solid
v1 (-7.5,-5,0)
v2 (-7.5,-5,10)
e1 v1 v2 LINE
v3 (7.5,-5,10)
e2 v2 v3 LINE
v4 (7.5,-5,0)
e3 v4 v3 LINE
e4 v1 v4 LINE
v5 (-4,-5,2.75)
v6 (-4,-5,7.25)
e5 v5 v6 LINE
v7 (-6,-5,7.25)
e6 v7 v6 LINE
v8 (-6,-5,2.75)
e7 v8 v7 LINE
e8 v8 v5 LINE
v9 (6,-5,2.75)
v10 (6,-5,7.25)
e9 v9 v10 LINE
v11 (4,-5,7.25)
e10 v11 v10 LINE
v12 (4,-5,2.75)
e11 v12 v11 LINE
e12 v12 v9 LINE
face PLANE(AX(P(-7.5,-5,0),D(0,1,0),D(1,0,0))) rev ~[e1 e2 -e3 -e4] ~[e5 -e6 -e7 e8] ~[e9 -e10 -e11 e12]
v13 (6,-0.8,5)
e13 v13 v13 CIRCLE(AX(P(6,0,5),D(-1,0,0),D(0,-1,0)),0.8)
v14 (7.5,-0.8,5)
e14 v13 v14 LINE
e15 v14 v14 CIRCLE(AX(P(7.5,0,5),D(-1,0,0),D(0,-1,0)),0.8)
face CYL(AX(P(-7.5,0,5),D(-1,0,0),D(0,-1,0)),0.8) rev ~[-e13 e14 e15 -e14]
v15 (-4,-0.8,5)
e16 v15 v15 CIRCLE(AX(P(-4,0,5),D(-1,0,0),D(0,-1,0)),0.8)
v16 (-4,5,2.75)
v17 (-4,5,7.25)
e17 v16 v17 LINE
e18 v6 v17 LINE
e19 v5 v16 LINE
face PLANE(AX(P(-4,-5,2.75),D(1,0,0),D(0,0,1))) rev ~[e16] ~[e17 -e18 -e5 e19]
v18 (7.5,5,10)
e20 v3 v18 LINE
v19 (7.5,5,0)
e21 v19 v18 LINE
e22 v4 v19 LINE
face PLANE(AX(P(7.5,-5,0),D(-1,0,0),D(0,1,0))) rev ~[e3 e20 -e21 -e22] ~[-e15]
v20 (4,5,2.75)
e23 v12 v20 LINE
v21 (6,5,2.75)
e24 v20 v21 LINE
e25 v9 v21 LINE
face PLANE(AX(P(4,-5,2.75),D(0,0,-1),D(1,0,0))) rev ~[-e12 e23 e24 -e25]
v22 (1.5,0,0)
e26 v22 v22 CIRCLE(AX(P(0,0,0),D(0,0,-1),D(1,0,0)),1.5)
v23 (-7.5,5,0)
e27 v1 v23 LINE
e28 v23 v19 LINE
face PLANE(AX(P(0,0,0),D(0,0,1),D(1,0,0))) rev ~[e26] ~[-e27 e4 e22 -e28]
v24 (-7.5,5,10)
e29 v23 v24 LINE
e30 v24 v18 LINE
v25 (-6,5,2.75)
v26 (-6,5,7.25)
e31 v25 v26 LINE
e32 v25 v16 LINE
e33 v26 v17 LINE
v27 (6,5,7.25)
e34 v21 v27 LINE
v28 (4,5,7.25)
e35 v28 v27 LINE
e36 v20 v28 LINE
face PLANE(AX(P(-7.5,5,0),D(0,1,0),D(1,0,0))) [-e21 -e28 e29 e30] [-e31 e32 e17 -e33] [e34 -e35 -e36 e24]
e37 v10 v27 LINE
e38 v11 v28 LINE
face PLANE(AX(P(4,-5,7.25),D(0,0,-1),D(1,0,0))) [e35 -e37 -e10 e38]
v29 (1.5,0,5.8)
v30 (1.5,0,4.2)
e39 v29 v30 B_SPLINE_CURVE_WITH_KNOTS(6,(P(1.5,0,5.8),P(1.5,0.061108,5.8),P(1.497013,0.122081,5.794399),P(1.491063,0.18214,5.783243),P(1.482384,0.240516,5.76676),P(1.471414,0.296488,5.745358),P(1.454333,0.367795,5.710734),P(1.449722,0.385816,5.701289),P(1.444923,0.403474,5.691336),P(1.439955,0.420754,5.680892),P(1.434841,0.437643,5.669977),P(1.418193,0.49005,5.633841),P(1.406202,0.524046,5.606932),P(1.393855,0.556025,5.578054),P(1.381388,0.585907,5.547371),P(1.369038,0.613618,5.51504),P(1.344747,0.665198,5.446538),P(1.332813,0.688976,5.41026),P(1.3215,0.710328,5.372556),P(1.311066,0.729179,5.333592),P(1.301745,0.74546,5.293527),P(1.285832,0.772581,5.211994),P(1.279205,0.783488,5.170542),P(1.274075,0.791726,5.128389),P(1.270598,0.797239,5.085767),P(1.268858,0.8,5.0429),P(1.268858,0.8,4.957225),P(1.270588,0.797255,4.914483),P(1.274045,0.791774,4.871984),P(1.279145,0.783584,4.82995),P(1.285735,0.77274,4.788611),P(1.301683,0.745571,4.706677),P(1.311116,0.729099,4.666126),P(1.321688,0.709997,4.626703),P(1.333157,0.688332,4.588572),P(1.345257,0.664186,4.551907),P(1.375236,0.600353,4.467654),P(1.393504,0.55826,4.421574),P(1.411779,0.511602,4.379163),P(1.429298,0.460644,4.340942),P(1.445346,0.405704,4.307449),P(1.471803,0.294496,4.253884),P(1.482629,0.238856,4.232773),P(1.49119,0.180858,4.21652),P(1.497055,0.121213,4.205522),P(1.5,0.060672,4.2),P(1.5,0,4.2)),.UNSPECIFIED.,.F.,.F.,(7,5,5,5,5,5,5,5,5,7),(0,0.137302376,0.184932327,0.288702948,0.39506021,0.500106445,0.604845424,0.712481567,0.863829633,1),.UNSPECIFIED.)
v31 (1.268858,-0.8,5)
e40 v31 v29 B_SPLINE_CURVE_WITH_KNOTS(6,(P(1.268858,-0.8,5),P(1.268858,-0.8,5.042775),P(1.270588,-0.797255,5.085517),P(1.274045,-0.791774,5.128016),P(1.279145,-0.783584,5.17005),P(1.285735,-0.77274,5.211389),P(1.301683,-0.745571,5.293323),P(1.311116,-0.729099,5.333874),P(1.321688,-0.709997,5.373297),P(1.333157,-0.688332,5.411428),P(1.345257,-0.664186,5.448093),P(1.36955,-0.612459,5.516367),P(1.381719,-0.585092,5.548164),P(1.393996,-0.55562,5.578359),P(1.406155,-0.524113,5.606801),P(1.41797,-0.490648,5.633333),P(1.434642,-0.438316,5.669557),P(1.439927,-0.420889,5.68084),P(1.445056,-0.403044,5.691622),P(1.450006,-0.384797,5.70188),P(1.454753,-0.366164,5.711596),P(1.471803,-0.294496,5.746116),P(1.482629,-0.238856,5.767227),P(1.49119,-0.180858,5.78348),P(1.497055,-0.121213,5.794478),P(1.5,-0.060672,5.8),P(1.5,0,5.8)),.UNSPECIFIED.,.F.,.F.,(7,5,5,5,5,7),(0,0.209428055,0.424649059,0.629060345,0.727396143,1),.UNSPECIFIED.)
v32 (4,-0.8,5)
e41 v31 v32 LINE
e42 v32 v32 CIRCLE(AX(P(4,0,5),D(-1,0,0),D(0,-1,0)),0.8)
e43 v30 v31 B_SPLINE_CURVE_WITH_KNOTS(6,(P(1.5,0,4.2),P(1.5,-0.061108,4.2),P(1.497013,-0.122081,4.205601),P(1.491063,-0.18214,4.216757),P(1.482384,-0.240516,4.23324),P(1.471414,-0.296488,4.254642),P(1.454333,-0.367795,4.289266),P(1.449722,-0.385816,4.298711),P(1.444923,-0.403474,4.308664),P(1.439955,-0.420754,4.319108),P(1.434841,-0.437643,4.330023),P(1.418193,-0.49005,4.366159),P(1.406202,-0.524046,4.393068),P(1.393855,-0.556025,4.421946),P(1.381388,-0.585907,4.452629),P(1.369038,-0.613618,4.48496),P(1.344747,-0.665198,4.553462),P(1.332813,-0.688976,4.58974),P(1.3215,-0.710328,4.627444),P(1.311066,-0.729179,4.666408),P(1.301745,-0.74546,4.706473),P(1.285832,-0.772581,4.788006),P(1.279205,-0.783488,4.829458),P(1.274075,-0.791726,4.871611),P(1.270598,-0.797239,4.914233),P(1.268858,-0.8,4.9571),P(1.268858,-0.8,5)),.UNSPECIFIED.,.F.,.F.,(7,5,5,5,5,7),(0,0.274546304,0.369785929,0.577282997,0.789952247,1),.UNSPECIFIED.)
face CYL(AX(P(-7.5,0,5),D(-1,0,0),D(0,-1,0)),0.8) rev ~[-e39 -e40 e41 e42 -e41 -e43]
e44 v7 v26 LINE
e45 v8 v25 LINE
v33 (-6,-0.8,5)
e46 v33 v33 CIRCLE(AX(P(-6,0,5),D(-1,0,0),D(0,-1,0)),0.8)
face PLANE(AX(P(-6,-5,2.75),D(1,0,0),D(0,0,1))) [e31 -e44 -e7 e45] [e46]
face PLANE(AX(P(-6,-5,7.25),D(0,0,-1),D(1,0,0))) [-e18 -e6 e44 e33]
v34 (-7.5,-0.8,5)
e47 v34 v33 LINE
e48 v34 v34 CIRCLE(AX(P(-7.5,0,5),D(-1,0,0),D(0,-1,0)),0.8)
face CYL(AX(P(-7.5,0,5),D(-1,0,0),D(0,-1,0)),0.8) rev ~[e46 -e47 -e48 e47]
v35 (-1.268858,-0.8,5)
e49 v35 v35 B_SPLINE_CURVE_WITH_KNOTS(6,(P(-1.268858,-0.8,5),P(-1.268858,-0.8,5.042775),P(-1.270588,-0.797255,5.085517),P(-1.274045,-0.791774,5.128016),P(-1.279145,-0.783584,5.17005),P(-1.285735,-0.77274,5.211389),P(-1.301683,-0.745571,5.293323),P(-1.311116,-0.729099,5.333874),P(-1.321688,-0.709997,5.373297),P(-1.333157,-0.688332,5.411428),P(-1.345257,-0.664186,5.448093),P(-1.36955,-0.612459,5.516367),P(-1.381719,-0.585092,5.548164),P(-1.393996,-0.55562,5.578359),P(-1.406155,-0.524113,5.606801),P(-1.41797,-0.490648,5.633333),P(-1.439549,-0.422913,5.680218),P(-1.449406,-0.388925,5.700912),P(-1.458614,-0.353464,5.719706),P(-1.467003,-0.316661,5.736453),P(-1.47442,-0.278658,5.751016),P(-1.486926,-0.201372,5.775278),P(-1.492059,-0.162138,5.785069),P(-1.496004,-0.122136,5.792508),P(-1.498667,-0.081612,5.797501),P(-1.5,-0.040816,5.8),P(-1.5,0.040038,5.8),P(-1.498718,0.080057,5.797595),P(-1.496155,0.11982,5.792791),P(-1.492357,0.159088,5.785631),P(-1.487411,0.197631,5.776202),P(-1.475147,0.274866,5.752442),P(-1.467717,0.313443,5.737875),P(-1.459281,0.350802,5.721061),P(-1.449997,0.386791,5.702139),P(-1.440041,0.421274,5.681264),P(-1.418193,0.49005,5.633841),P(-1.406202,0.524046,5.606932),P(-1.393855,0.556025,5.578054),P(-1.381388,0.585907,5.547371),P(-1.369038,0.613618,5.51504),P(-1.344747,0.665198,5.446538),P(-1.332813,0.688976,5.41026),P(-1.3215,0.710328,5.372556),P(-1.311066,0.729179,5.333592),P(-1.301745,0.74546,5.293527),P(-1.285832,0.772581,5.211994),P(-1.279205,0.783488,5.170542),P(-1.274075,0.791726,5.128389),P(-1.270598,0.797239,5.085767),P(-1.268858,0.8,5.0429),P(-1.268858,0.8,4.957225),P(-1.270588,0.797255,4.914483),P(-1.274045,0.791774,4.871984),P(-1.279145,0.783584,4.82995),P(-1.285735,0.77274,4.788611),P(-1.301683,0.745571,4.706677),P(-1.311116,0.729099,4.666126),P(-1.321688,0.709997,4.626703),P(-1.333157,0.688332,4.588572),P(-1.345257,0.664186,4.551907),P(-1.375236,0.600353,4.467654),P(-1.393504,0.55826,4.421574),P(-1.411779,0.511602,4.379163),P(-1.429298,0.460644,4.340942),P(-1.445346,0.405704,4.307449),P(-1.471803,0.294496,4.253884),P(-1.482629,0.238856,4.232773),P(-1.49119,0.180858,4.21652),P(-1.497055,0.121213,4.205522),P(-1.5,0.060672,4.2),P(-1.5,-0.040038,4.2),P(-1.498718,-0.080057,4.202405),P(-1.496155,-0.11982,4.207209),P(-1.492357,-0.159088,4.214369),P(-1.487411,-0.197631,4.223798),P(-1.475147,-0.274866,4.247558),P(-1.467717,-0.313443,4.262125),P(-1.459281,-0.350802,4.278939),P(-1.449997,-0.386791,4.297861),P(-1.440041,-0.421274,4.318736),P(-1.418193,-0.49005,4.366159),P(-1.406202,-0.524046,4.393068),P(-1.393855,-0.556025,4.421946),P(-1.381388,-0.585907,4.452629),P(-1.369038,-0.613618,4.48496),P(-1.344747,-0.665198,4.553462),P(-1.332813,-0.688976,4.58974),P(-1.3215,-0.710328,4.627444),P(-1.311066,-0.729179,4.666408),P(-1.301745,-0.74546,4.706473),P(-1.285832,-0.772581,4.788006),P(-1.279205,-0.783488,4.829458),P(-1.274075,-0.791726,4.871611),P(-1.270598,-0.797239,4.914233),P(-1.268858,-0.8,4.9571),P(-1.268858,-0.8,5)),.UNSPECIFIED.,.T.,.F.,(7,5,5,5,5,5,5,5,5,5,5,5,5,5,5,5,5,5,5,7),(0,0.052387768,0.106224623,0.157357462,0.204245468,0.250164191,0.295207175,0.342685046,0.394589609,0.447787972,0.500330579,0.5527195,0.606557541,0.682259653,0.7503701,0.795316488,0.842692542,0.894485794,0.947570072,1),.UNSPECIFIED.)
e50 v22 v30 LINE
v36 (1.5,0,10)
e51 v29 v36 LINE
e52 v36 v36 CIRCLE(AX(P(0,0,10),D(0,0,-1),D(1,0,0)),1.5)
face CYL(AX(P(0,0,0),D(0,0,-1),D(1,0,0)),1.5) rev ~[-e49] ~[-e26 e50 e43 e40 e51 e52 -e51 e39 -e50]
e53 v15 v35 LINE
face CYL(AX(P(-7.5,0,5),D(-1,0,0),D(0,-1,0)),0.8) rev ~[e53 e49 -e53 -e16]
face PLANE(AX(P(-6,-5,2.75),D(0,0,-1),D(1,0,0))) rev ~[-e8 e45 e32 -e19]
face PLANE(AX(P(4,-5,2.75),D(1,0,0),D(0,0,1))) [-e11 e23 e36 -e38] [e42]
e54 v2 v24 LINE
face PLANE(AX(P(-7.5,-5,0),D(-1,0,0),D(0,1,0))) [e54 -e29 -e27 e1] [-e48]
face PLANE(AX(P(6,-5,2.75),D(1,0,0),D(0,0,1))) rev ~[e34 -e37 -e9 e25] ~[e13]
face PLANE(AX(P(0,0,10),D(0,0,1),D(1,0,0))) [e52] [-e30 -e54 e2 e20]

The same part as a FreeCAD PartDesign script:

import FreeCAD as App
import Part
import Sketcher

V = App.Vector

doc = App.newDocument("Part")
params = doc.addObject("Spreadsheet::Sheet", "Params")
for row, (alias, value) in enumerate([
    ("sketch1_width", "15 mm"),
    ("sketch1_height", "10 mm"),
    ("pad1_length", "10 mm"),
    ("sketch2_width", "2 mm"),
    ("sketch2_height", "4.5 mm"),
    ("sketch3_diameter", "3 mm"),
    ("pocket2_length", "15 mm"),
    ("sketch4_diameter", "1.6 mm"),
], start=1):
    params.set(f"A{row}", alias)
    params.set(f"B{row}", "=" + value)
    params.setAlias(f"B{row}", alias)

body = doc.addObject("PartDesign::Body", "Body")

# Sketch on XY plane
sketch1 = body.newObject("Sketcher::SketchObject", "Sketch")
sketch1.AttachmentSupport = (doc.getObject("XY_Plane"), [""])
sketch1.MapMode = "FlatFace"
sketch1.addGeometry([
    Part.LineSegment(V(-8, 5, 0), V(-8, -5, 0)),
    Part.LineSegment(V(-8, -5, 0), V(8, -5, 0)),
    Part.LineSegment(V(8, -5, 0), V(8, 5, 0)),
    Part.LineSegment(V(8, 5, 0), V(-8, 5, 0)),
], False)
sketch1.addConstraint([
    Sketcher.Constraint("Coincident", 0, 2, 1, 1),
    Sketcher.Constraint("Coincident", 1, 2, 2, 1),
    Sketcher.Constraint("Coincident", 2, 2, 3, 1),
    Sketcher.Constraint("Coincident", 3, 2, 0, 1),
    Sketcher.Constraint("Vertical", 0),
    Sketcher.Constraint("Horizontal", 1),
    Sketcher.Constraint("Vertical", 2),
    Sketcher.Constraint("Horizontal", 3),
    Sketcher.Constraint("Symmetric", 0, 2, 2, 2, -1, 1),
    Sketcher.Constraint("DistanceX", 1, 1, 1, 2, 15.0),
    Sketcher.Constraint("DistanceY", 0, 2, 0, 1, 10.0),
])
sketch1.setExpression("Constraints[9]", "Params.sketch1_width")
sketch1.setExpression("Constraints[10]", "Params.sketch1_height")
pad1 = body.newObject("PartDesign::Pad", "Pad")
pad1.Profile = sketch1
pad1.setExpression("Length", "Params.pad1_length")

# Sketch on XZ plane
sketch2 = body.newObject("Sketcher::SketchObject", "Sketch001")
sketch2.AttachmentSupport = (doc.getObject("XZ_Plane"), [""])
sketch2.MapMode = "FlatFace"
sketch2.AttachmentOffset = App.Placement(V(0, 0, 5), App.Rotation())
sketch2.addGeometry([
    Part.LineSegment(V(-6, 7.2, 0), V(-6, 2.8, 0)),  # 0
    Part.LineSegment(V(-6, 2.8, 0), V(-4, 2.8, 0)),  # 1
    Part.LineSegment(V(-4, 2.8, 0), V(-4, 7.2, 0)),  # 2
    Part.LineSegment(V(-4, 7.2, 0), V(-6, 7.2, 0)),  # 3
    Part.LineSegment(V(4, 7.2, 0), V(4, 2.8, 0)),  # 4
    Part.LineSegment(V(4, 2.8, 0), V(6, 2.8, 0)),  # 5
    Part.LineSegment(V(6, 2.8, 0), V(6, 7.2, 0)),  # 6
    Part.LineSegment(V(6, 7.2, 0), V(4, 7.2, 0)),  # 7
], False)
sketch2.addConstraint([
    Sketcher.Constraint("Coincident", 0, 2, 1, 1),
    Sketcher.Constraint("Coincident", 1, 2, 2, 1),
    Sketcher.Constraint("Coincident", 2, 2, 3, 1),
    Sketcher.Constraint("Coincident", 3, 2, 0, 1),
    Sketcher.Constraint("Coincident", 4, 2, 5, 1),
    Sketcher.Constraint("Coincident", 5, 2, 6, 1),
    Sketcher.Constraint("Coincident", 6, 2, 7, 1),
    Sketcher.Constraint("Coincident", 7, 2, 4, 1),
    Sketcher.Constraint("Vertical", 0),
    Sketcher.Constraint("Horizontal", 1),
    Sketcher.Constraint("Vertical", 2),
    Sketcher.Constraint("Horizontal", 3),
    Sketcher.Constraint("Vertical", 4),
    Sketcher.Constraint("Horizontal", 5),
    Sketcher.Constraint("Vertical", 6),
    Sketcher.Constraint("Horizontal", 7),
    Sketcher.Constraint("Symmetric", 1, 2, 4, 2, -2),
    Sketcher.Constraint("Symmetric", 3, 2, 6, 2, -2),
    Sketcher.Constraint("DistanceX", 1, 1, 1, 2, 2.0),
    Sketcher.Constraint("DistanceY", 0, 2, 0, 1, 4.5),
    Sketcher.Constraint("DistanceX", 0, 2, -1, 1, 6.0),
    Sketcher.Constraint("DistanceY", -1, 1, 0, 2, 2.75),
])
sketch2.setExpression("Constraints[18]", "Params.sketch2_width")
sketch2.setExpression("Constraints[19]", "Params.sketch2_height")
pocket1 = body.newObject("PartDesign::Pocket", "Pocket")
pocket1.Profile = sketch2
pocket1.Type = "ThroughAll"

# Sketch on XY plane
sketch3 = body.newObject("Sketcher::SketchObject", "Sketch002")
sketch3.AttachmentSupport = (doc.getObject("XY_Plane"), [""])
sketch3.MapMode = "FlatFace"
sketch3.addGeometry(Part.Circle(V(0, 0, 0), V(0, 0, 1), 1.5), False)
sketch3.addConstraint([
    Sketcher.Constraint("Coincident", 0, 3, -1, 1),
    Sketcher.Constraint("Diameter", 0, 3.0),
])
sketch3.setExpression("Constraints[1]", "Params.sketch3_diameter")
pocket2 = body.newObject("PartDesign::Pocket", "Pocket001")
pocket2.Profile = sketch3
pocket2.setExpression("Length", "Params.pocket2_length")
pocket2.Reversed = True

# Sketch on YZ plane
sketch4 = body.newObject("Sketcher::SketchObject", "Sketch003")
sketch4.AttachmentSupport = (doc.getObject("YZ_Plane"), [""])
sketch4.MapMode = "FlatFace"
sketch4.AttachmentOffset = App.Placement(V(0, 0, -7.5), App.Rotation())
sketch4.addGeometry(Part.Circle(V(0, 5, 0), V(0, 0, 1), 0.8), False)
sketch4.addConstraint([
    Sketcher.Constraint("PointOnObject", 0, 3, -2),
    Sketcher.Constraint("Diameter", 0, 1.6),
    Sketcher.Constraint("DistanceY", -1, 1, 0, 3, 5.0),
])
sketch4.setExpression("Constraints[1]", "Params.sketch4_diameter")
pocket3 = body.newObject("PartDesign::Pocket", "Pocket002")
pocket3.Profile = sketch4
pocket3.Type = "ThroughAll"
pocket3.Reversed = True

doc.recompute()
